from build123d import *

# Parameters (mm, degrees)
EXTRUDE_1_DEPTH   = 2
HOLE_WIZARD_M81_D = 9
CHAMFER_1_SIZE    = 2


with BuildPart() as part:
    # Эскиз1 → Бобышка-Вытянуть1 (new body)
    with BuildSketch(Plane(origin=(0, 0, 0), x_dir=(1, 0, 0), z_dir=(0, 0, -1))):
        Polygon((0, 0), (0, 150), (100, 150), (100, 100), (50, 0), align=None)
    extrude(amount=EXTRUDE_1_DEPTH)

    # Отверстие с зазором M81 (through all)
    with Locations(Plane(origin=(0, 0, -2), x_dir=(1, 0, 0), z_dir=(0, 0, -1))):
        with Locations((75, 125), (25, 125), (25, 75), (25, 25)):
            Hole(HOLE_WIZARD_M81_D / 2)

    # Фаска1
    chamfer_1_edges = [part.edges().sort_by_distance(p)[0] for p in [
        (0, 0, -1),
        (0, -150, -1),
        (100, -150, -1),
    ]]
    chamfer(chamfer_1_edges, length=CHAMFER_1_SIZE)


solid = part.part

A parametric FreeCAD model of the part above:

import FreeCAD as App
import Part
import Sketcher
Q = App.Units.Quantity


def edges_at(feature, points):
    """Names of the edges that pass closest to the given points."""
    edges = feature.Shape.Edges
    near = lambda p: min(range(len(edges)), key=lambda i: edges[i].distToShape(Part.Vertex(*p))[0])
    return sorted({f"Edge{near(p) + 1}" for p in points})


def add_polygon(sketch, points):
    """Adds a closed chain of lines whose ends are joined by coincident constraints."""
    first, n = sketch.GeometryCount, len(points)
    for a, b in zip(points, points[1:] + points[:1]):
        sketch.addGeometry(Part.LineSegment(App.Vector(*a, 0), App.Vector(*b, 0)), False)
    for i in range(n):
        sketch.addConstraint(Sketcher.Constraint("Coincident", first + i, 2, first + (i + 1) % n, 1))

doc = App.newDocument("Part")
body = doc.addObject("PartDesign::Body", "Body")

# Sketch on XY plane
sketch1 = body.newObject("Sketcher::SketchObject", "Sketch")
sketch1.AttachmentSupport = (doc.getObject("XY_Plane"), [""])
sketch1.MapMode = "FlatFace"
add_polygon(sketch1, [(0, -150), (0, 0), (50, 0), (100, -100), (100, -150)])  # lines 0-4
sketch1.addConstraint([
    Sketcher.Constraint("Vertical", 0),
    Sketcher.Constraint("Horizontal", 1),
    Sketcher.Constraint("Vertical", 3),
    Sketcher.Constraint("Horizontal", 4),
    Sketcher.Constraint("Coincident", 0, 2, -1, 1),
    Sketcher.Constraint("Equal", 1, 3),
    Sketcher.Constraint("DistanceX", 1, 1, 1, 2, Q("50 mm")),
    Sketcher.Constraint("DistanceX", 4, 2, 4, 1, Q("100 mm")),
    Sketcher.Constraint("DistanceY", 0, 1, 0, 2, Q("150 mm")),
])
pad1 = body.newObject("PartDesign::Pad", "Pad")
pad1.Profile = sketch1
pad1.Length = 2
pad1.Reversed = True

# Sketch on XY plane
sketch2 = body.newObject("Sketcher::SketchObject", "Sketch001")
sketch2.AttachmentSupport = (doc.getObject("XY_Plane"), [""])
sketch2.MapMode = "FlatFace"
sketch2.AttachmentOffset = App.Placement(App.Vector(0, 0, -2), App.Rotation())
sketch2.addGeometry([
    Part.Circle(App.Vector(75, -125, 0), App.Vector(0, 0, 1), 4.5),
    Part.Circle(App.Vector(25, -125, 0), App.Vector(0, 0, 1), 4.5),
    Part.Circle(App.Vector(25, -75, 0), App.Vector(0, 0, 1), 4.5),
    Part.Circle(App.Vector(25, -25, 0), App.Vector(0, 0, 1), 4.5),
], False)
sketch2.addConstraint([
    Sketcher.Constraint("Equal", 0, 1),
    Sketcher.Constraint("Equal", 1, 2),
    Sketcher.Constraint("Equal", 2, 3),
    Sketcher.Constraint("Horizontal", 0, 3, 1, 3),
    Sketcher.Constraint("Vertical", 1, 3, 2, 3),
    Sketcher.Constraint("Vertical", 2, 3, 3, 3),
    Sketcher.Constraint("Diameter", 0, Q("9 mm")),
    Sketcher.Constraint("DistanceX", -1, 1, 0, 3, Q("75 mm")),
    Sketcher.Constraint("DistanceY", 0, 3, -1, 1, Q("125 mm")),
    Sketcher.Constraint("DistanceX", -1, 1, 1, 3, Q("25 mm")),
    Sketcher.Constraint("DistanceY", 2, 3, -1, 1, Q("75 mm")),
    Sketcher.Constraint("DistanceY", 3, 3, -1, 1, Q("25 mm")),
])
doc.recompute()
hole = body.newObject("PartDesign::Hole", "Hole")
hole.Profile = sketch2
hole.ThreadType = "None"
hole.Diameter = 9
hole.DepthType = "ThroughAll"
hole.Reversed = True
doc.recompute()

chamfer = body.newObject("PartDesign::Chamfer", "Chamfer")
chamfer.Base = (hole, edges_at(hole, [(0, 0, -1), (0, -150, -1), (100, -150, -1)]))
chamfer.Size = 2

doc.recompute()
